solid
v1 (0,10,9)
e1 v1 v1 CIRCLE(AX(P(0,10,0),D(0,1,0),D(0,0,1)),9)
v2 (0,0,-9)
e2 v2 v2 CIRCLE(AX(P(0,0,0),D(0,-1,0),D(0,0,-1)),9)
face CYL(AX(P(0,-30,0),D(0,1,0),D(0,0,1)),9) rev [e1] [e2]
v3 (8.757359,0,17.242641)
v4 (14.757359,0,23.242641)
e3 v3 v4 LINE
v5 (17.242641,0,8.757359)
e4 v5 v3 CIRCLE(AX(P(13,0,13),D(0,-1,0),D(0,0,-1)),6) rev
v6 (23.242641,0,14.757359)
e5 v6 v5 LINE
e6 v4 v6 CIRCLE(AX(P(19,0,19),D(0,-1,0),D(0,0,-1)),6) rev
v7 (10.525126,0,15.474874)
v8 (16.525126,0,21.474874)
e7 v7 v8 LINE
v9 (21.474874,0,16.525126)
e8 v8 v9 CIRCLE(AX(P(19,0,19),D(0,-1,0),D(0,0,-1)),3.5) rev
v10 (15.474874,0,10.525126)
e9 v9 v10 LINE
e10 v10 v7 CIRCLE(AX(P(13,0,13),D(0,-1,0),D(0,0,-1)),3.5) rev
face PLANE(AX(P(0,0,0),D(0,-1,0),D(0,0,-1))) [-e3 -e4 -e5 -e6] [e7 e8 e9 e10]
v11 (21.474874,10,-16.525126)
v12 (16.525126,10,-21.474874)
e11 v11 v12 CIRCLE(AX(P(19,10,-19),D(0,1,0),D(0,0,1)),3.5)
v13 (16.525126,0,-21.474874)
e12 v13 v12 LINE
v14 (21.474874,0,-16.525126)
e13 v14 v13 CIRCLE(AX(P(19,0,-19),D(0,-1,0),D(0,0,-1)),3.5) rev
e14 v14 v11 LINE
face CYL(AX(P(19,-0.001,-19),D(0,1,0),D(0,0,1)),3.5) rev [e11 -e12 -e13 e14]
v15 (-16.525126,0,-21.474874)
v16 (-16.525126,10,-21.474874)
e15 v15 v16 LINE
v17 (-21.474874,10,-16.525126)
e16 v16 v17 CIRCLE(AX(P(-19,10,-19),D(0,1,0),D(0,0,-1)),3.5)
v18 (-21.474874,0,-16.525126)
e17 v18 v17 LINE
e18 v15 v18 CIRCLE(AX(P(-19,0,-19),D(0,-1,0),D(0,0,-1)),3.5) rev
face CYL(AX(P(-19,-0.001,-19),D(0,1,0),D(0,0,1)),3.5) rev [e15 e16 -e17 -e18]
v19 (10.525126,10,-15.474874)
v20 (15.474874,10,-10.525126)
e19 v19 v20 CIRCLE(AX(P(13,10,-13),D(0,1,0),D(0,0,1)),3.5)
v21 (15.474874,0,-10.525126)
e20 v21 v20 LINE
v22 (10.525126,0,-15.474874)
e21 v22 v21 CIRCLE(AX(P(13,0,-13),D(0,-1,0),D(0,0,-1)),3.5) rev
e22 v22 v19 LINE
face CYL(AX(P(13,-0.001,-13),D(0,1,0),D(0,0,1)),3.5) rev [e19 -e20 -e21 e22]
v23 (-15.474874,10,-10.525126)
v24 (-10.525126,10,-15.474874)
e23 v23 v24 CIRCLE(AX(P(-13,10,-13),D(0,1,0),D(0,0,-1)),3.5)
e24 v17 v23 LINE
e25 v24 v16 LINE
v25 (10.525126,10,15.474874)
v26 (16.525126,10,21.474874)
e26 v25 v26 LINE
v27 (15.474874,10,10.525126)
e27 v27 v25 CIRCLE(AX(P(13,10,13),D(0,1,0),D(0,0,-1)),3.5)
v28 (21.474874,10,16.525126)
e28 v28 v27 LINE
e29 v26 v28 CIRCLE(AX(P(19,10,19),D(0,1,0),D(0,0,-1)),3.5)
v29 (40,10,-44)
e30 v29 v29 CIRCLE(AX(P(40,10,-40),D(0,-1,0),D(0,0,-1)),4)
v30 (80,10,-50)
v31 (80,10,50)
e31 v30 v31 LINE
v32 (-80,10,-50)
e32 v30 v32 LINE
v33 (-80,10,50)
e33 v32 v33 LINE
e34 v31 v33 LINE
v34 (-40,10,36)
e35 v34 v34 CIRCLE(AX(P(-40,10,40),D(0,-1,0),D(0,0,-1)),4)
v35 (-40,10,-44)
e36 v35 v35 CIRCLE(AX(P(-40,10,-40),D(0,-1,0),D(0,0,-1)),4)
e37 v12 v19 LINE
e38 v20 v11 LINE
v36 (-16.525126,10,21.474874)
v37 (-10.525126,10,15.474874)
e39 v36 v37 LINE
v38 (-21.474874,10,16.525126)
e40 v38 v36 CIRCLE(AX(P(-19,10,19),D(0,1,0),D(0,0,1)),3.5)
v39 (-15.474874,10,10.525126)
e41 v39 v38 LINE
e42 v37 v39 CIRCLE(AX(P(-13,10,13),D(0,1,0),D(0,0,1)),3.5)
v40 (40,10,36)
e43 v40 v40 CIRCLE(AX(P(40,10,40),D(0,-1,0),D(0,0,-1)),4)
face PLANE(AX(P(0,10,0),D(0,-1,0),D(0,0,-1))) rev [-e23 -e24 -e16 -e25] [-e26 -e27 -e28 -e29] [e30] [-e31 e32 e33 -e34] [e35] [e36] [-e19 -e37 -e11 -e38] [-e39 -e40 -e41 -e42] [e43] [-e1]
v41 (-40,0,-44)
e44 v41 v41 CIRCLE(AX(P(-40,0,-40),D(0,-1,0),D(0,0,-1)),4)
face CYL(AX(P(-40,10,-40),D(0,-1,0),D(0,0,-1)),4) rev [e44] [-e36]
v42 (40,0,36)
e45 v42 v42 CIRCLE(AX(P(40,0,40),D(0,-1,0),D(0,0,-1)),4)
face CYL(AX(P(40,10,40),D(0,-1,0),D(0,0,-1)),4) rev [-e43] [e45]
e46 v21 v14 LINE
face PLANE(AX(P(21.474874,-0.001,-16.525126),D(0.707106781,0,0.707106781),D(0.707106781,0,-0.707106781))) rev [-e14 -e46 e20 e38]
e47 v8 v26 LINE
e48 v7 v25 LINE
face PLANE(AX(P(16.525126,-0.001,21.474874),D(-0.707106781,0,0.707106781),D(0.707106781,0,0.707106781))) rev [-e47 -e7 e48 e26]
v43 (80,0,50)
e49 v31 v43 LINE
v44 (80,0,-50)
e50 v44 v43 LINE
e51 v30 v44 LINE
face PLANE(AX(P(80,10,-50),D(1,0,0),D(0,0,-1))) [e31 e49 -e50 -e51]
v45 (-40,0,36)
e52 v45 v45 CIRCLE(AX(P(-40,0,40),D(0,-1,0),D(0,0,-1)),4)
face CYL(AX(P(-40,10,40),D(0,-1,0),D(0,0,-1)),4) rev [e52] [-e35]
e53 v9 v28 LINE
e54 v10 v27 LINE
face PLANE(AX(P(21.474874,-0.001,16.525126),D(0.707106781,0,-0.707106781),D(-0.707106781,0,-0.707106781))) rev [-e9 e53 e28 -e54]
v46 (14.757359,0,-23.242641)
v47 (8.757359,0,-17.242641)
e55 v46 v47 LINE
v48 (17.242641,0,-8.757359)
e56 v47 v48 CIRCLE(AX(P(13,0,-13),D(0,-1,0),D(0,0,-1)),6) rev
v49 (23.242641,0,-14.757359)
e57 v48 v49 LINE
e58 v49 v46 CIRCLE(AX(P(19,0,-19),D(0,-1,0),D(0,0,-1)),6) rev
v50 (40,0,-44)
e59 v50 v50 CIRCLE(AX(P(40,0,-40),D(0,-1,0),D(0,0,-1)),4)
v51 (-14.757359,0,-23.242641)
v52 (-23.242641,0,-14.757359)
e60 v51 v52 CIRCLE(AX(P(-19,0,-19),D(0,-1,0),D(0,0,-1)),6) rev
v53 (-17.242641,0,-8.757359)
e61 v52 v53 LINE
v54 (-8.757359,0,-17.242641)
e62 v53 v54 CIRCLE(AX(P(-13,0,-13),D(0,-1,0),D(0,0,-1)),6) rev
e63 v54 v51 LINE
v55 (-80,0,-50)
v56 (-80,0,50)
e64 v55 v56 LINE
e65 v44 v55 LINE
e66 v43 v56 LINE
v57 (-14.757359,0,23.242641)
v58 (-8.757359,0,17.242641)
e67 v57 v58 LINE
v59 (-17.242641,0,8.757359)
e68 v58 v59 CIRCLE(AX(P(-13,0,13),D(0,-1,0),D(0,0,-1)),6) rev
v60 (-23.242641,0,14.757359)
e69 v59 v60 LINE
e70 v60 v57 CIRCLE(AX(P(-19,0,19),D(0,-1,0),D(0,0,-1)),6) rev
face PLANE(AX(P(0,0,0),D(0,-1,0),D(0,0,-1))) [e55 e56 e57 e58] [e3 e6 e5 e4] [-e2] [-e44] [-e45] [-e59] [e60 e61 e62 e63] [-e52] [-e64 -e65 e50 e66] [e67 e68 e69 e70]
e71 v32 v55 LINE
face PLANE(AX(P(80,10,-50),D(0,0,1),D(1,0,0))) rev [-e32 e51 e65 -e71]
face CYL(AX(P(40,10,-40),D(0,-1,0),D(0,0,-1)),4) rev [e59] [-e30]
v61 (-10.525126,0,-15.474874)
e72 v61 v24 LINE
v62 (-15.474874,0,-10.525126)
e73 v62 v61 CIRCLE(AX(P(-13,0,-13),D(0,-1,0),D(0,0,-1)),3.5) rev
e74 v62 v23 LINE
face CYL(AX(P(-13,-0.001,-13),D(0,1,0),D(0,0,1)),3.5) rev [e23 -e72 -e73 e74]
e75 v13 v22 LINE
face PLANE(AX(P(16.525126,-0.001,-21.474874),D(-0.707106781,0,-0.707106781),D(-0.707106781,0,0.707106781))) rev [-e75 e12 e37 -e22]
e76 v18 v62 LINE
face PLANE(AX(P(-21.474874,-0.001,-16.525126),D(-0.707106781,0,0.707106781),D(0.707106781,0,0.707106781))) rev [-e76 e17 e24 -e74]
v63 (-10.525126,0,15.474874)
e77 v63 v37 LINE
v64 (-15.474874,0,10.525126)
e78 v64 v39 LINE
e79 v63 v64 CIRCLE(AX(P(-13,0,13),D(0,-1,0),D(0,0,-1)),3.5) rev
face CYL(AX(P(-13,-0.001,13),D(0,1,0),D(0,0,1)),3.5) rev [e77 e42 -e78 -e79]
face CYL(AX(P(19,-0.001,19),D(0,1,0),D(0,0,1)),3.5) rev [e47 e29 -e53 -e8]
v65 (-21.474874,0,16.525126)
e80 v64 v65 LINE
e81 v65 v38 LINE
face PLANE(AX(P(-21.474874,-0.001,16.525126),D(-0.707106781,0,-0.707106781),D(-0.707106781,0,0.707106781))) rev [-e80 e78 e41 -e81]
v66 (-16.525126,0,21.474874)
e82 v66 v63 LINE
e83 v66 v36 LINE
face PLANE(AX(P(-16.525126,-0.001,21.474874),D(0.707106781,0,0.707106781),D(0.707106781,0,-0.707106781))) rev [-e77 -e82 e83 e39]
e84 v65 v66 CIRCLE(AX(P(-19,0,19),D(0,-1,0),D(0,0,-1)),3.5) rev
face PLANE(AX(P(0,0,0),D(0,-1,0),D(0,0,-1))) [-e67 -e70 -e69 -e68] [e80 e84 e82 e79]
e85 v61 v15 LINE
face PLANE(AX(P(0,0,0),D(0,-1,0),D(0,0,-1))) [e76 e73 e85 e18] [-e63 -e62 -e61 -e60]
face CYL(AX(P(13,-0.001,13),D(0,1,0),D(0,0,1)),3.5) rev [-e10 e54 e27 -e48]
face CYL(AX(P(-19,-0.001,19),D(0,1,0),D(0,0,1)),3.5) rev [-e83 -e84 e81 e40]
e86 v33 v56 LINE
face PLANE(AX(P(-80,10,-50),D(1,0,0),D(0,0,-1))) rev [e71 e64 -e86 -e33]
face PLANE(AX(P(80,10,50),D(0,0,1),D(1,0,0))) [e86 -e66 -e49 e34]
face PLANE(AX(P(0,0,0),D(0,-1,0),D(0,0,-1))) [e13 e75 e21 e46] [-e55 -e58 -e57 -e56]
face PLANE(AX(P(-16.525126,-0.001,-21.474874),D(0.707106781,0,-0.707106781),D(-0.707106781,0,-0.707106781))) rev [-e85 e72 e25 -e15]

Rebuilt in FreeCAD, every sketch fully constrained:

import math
import FreeCAD as App
import Part
import Sketcher
Q = App.Units.Quantity


def add_polygon(sketch, points):
    """Adds a closed chain of lines whose ends are joined by coincident constraints."""
    first, n = sketch.GeometryCount, len(points)
    for a, b in zip(points, points[1:] + points[:1]):
        sketch.addGeometry(Part.LineSegment(App.Vector(*a, 0), App.Vector(*b, 0)), False)
    for i in range(n):
        sketch.addConstraint(Sketcher.Constraint("Coincident", first + i, 2, first + (i + 1) % n, 1))

doc = App.newDocument("Part")
body = doc.addObject("PartDesign::Body", "Body")

sketch1 = body.newObject("Sketcher::SketchObject", "Sketch")
sketch1.AttachmentSupport = (doc.getObject("XZ_Plane"), [""])
sketch1.MapMode = "FlatFace"
add_polygon(sketch1, [(-80, -50), (-80, 50), (80, 50), (80, -50)])
sketch1.addConstraint([
    Sketcher.Constraint("Vertical", 0),
    Sketcher.Constraint("Horizontal", 1),
    Sketcher.Constraint("Vertical", 2),
    Sketcher.Constraint("Horizontal", 3),
    Sketcher.Constraint("Symmetric", 0, 2, 2, 2, -1, 1),
    Sketcher.Constraint("DistanceX", 1, 1, 1, 2, 160.0),
    Sketcher.Constraint("DistanceY", 0, 1, 0, 2, 100.0),
])
pad1 = body.newObject("PartDesign::Pad", "Pad")
pad1.Profile = sketch1
pad1.Length = 10
pad1.Reversed = True

sketch2 = body.newObject("Sketcher::SketchObject", "Sketch001")
sketch2.AttachmentSupport = (doc.getObject("XZ_Plane"), [""])
sketch2.MapMode = "FlatFace"
sketch2.AttachmentOffset = App.Placement(App.Vector(0, 0, -10), App.Rotation())
sketch2.addGeometry(Part.Circle(App.Vector(0, 0, 0), App.Vector(0, 0, 1), 9), False)
sketch2.addConstraint([
    Sketcher.Constraint("Coincident", 0, 3, -1, 1),
    Sketcher.Constraint("Diameter", 0, 18.0),
])
pocket1 = body.newObject("PartDesign::Pocket", "Pocket")
pocket1.Profile = sketch2
pocket1.Length = 40
pocket1.Reversed = True

sketch3 = body.newObject("Sketcher::SketchObject", "Sketch002")
sketch3.AttachmentSupport = (doc.getObject("XZ_Plane"), [""])
sketch3.MapMode = "FlatFace"
sketch3.AttachmentOffset = App.Placement(App.Vector(0, 0, -10), App.Rotation())
sketch3.addGeometry([
    Part.LineSegment(App.Vector(-15.474874, 10.525126, 0), App.Vector(-21.474874, 16.525126, 0)),
    Part.ArcOfCircle(Part.Circle(App.Vector(-19, 19, 0), App.Vector(0, 0, 1), 3.5), math.radians(45), math.radians(225)),
    Part.LineSegment(App.Vector(-16.525126, 21.474874, 0), App.Vector(-10.525126, 15.474874, 0)),
    Part.ArcOfCircle(Part.Circle(App.Vector(-13, 13, 0), App.Vector(0, 0, 1), 3.5), math.radians(-135), math.radians(45)),
], False)
sketch3.addConstraint([
    Sketcher.Constraint("Tangent", 0, 2, 1, 2),
    Sketcher.Constraint("Tangent", 1, 1, 2, 1),
    Sketcher.Constraint("Tangent", 2, 2, 3, 2),
    Sketcher.Constraint("Tangent", 3, 1, 0, 1),
    Sketcher.Constraint("Equal", 1, 3),
    Sketcher.Constraint("Radius", 1, 3.5),
    Sketcher.Constraint("Angle", 0, Q("135 deg")),
    Sketcher.Constraint("DistanceX", 1, 3, -1, 1, 19.0),
    Sketcher.Constraint("DistanceY", -1, 1, 1, 3, 19.0),
    Sketcher.Constraint("DistanceX", 3, 3, -1, 1, 13.0),
])
pocket2 = body.newObject("PartDesign::Pocket", "Pocket001")
pocket2.Profile = sketch3
pocket2.Type = "UpToFirst"
pocket2.Reversed = True

sketch4 = body.newObject("Sketcher::SketchObject", "Sketch003")
sketch4.AttachmentSupport = (doc.getObject("XZ_Plane"), [""])
sketch4.MapMode = "FlatFace"
sketch4.AttachmentOffset = App.Placement(App.Vector(0, 0, -10), App.Rotation())
sketch4.addGeometry([
    Part.LineSegment(App.Vector(21.474874, 16.525126, 0), App.Vector(15.474874, 10.525126, 0)),
    Part.ArcOfCircle(Part.Circle(App.Vector(13, 13, 0), App.Vector(0, 0, 1), 3.5), math.radians(135), math.radians(315)),
    Part.LineSegment(App.Vector(10.525126, 15.474874, 0), App.Vector(16.525126, 21.474874, 0)),
    Part.ArcOfCircle(Part.Circle(App.Vector(19, 19, 0), App.Vector(0, 0, 1), 3.5), math.radians(-45), math.radians(135)),
], False)
sketch4.addConstraint([
    Sketcher.Constraint("Tangent", 0, 2, 1, 2),
    Sketcher.Constraint("Tangent", 1, 1, 2, 1),
    Sketcher.Constraint("Tangent", 2, 2, 3, 2),
    Sketcher.Constraint("Tangent", 3, 1, 0, 1),
    Sketcher.Constraint("Equal", 1, 3),
    Sketcher.Constraint("Radius", 1, 3.5),
    Sketcher.Constraint("Angle", 0, Q("-135 deg")),
    Sketcher.Constraint("DistanceX", -1, 1, 1, 3, 13.0),
    Sketcher.Constraint("DistanceY", -1, 1, 1, 3, 13.0),
    Sketcher.Constraint("DistanceX", -1, 1, 3, 3, 19.0),
])
pocket3 = body.newObject("PartDesign::Pocket", "Pocket002")
pocket3.Profile = sketch4
pocket3.Type = "UpToFirst"
pocket3.Reversed = True

sketch5 = body.newObject("Sketcher::SketchObject", "Sketch004")
sketch5.AttachmentSupport = (doc.getObject("XZ_Plane"), [""])
sketch5.MapMode = "FlatFace"
sketch5.AttachmentOffset = App.Placement(App.Vector(0, 0, -10), App.Rotation())
sketch5.addGeometry([
    Part.LineSegment(App.Vector(15.474874, -10.525126, 0), App.Vector(21.474874, -16.525126, 0)),
    Part.ArcOfCircle(Part.Circle(App.Vector(19, -19, 0), App.Vector(0, 0, 1), 3.5), math.radians(-135), math.radians(45)),
    Part.LineSegment(App.Vector(16.525126, -21.474874, 0), App.Vector(10.525126, -15.474874, 0)),
    Part.ArcOfCircle(Part.Circle(App.Vector(13, -13, 0), App.Vector(0, 0, 1), 3.5), math.radians(45), math.radians(225)),
], False)
sketch5.addConstraint([
    Sketcher.Constraint("Tangent", 0, 2, 1, 2),
    Sketcher.Constraint("Tangent", 1, 1, 2, 1),
    Sketcher.Constraint("Tangent", 2, 2, 3, 2),
    Sketcher.Constraint("Tangent", 3, 1, 0, 1),
    Sketcher.Constraint("Equal", 1, 3),
    Sketcher.Constraint("Radius", 1, 3.5),
    Sketcher.Constraint("Angle", 0, Q("-45 deg")),
    Sketcher.Constraint("DistanceX", -1, 1, 1, 3, 19.0),
    Sketcher.Constraint("DistanceY", 1, 3, -1, 1, 19.0),
    Sketcher.Constraint("DistanceX", -1, 1, 3, 3, 13.0),
])
pocket4 = body.newObject("PartDesign::Pocket", "Pocket003")
pocket4.Profile = sketch5
pocket4.Type = "UpToFirst"
pocket4.Reversed = True

sketch6 = body.newObject("Sketcher::SketchObject", "Sketch005")
sketch6.AttachmentSupport = (doc.getObject("XZ_Plane"), [""])
sketch6.MapMode = "FlatFace"
sketch6.AttachmentOffset = App.Placement(App.Vector(0, 0, -10), App.Rotation())
sketch6.addGeometry([
    Part.LineSegment(App.Vector(-21.474874, -16.525126, 0), App.Vector(-15.474874, -10.525126, 0)),
    Part.ArcOfCircle(Part.Circle(App.Vector(-13, -13, 0), App.Vector(0, 0, 1), 3.5), math.radians(-45), math.radians(135)),
    Part.LineSegment(App.Vector(-10.525126, -15.474874, 0), App.Vector(-16.525126, -21.474874, 0)),
    Part.ArcOfCircle(Part.Circle(App.Vector(-19, -19, 0), App.Vector(0, 0, 1), 3.5), math.radians(135), math.radians(315)),
], False)
sketch6.addConstraint([
    Sketcher.Constraint("Tangent", 0, 2, 1, 2),
    Sketcher.Constraint("Tangent", 1, 1, 2, 1),
    Sketcher.Constraint("Tangent", 2, 2, 3, 2),
    Sketcher.Constraint("Tangent", 3, 1, 0, 1),
    Sketcher.Constraint("Equal", 1, 3),
    Sketcher.Constraint("Radius", 1, 3.5),
    Sketcher.Constraint("Angle", 0, Q("45 deg")),
    Sketcher.Constraint("DistanceX", 1, 3, -1, 1, 13.0),
    Sketcher.Constraint("DistanceY", 1, 3, -1, 1, 13.0),
    Sketcher.Constraint("DistanceX", 3, 3, -1, 1, 19.0),
])
pocket5 = body.newObject("PartDesign::Pocket", "Pocket004")
pocket5.Profile = sketch6
pocket5.Type = "UpToFirst"
pocket5.Reversed = True

sketch7 = body.newObject("Sketcher::SketchObject", "Sketch006")
sketch7.AttachmentSupport = (doc.getObject("XZ_Plane"), [""])
sketch7.MapMode = "FlatFace"
sketch7.AttachmentOffset = App.Placement(App.Vector(0, 0, -10), App.Rotation())
sketch7.addGeometry(Part.Circle(App.Vector(-40, 40, 0), App.Vector(0, 0, 1), 3), False)
sketch7.addConstraint([
    Sketcher.Constraint("Diameter", 0, 6.0),
    Sketcher.Constraint("DistanceX", 0, 3, -1, 1, 40.0),
    Sketcher.Constraint("DistanceY", -1, 1, 0, 3, 40.0),
])
pocket6 = body.newObject("PartDesign::Pocket", "Pocket005")
pocket6.Profile = sketch7
pocket6.Type = "UpToFirst"
pocket6.Reversed = True

sketch8 = body.newObject("Sketcher::SketchObject", "Sketch007")
sketch8.AttachmentSupport = (doc.getObject("XZ_Plane"), [""])
sketch8.MapMode = "FlatFace"
sketch8.AttachmentOffset = App.Placement(App.Vector(0, 0, -10), App.Rotation())
sketch8.addGeometry(Part.Circle(App.Vector(-40, -40, 0), App.Vector(0, 0, 1), 3), False)
sketch8.addConstraint([
    Sketcher.Constraint("Diameter", 0, 6.0),
    Sketcher.Constraint("DistanceX", 0, 3, -1, 1, 40.0),
    Sketcher.Constraint("DistanceY", 0, 3, -1, 1, 40.0),
])
pocket7 = body.newObject("PartDesign::Pocket", "Pocket006")
pocket7.Profile = sketch8
pocket7.Type = "UpToFirst"
pocket7.Reversed = True

sketch9 = body.newObject("Sketcher::SketchObject", "Sketch008")
sketch9.AttachmentSupport = (doc.getObject("XZ_Plane"), [""])
sketch9.MapMode = "FlatFace"
sketch9.AttachmentOffset = App.Placement(App.Vector(0, 0, -10), App.Rotation())
sketch9.addGeometry(Part.Circle(App.Vector(40, 40, 0), App.Vector(0, 0, 1), 3), False)
sketch9.addConstraint([
    Sketcher.Constraint("Diameter", 0, 6.0),
    Sketcher.Constraint("DistanceX", -1, 1, 0, 3, 40.0),
    Sketcher.Constraint("DistanceY", -1, 1, 0, 3, 40.0),
])
pocket8 = body.newObject("PartDesign::Pocket", "Pocket007")
pocket8.Profile = sketch9
pocket8.Type = "UpToFirst"
pocket8.Reversed = True

sketch10 = body.newObject("Sketcher::SketchObject", "Sketch009")
sketch10.AttachmentSupport = (doc.getObject("XZ_Plane"), [""])
sketch10.MapMode = "FlatFace"
sketch10.AttachmentOffset = App.Placement(App.Vector(0, 0, -10), App.Rotation())
sketch10.addGeometry(Part.Circle(App.Vector(40, -40, 0), App.Vector(0, 0, 1), 3), False)
sketch10.addConstraint([
    Sketcher.Constraint("Diameter", 0, 6.0),
    Sketcher.Constraint("DistanceX", -1, 1, 0, 3, 40.0),
    Sketcher.Constraint("DistanceY", 0, 3, -1, 1, 40.0),
])
pocket9 = body.newObject("PartDesign::Pocket", "Pocket008")
pocket9.Profile = sketch10
pocket9.Type = "UpToFirst"
pocket9.Reversed = True

sketch11 = body.newObject("Sketcher::SketchObject", "Sketch010")
sketch11.AttachmentSupport = (doc.getObject("XZ_Plane"), [""])
sketch11.MapMode = "FlatFace"
sketch11.addGeometry([
    Part.Circle(App.Vector(-40, 40, 0), App.Vector(0, 0, 1), 4),
    Part.Circle(App.Vector(40, 40, 0), App.Vector(0, 0, 1), 4),
    Part.Circle(App.Vector(40, -40, 0), App.Vector(0, 0, 1), 4),
    Part.Circle(App.Vector(-40, -40, 0), App.Vector(0, 0, 1), 4),
], False)
sketch11.addConstraint([
    Sketcher.Constraint("Equal", 0, 1),
    Sketcher.Constraint("Equal", 1, 2),
    Sketcher.Constraint("Equal", 2, 3),
    Sketcher.Constraint("Symmetric", 0, 3, 2, 3, -1, 1),
    Sketcher.Constraint("Symmetric", 1, 3, 3, 3, -1, 1),
    Sketcher.Constraint("Symmetric", 0, 3, 1, 3, -2),
    Sketcher.Constraint("Diameter", 0, 8.0),
    Sketcher.Constraint("DistanceX", 0, 3, -1, 1, 40.0),
    Sketcher.Constraint("DistanceY", -1, 1, 0, 3, 40.0),
])
pocket10 = body.newObject("PartDesign::Pocket", "Pocket009")
pocket10.Profile = sketch11
pocket10.Type = "ThroughAll"

doc.recompute()
